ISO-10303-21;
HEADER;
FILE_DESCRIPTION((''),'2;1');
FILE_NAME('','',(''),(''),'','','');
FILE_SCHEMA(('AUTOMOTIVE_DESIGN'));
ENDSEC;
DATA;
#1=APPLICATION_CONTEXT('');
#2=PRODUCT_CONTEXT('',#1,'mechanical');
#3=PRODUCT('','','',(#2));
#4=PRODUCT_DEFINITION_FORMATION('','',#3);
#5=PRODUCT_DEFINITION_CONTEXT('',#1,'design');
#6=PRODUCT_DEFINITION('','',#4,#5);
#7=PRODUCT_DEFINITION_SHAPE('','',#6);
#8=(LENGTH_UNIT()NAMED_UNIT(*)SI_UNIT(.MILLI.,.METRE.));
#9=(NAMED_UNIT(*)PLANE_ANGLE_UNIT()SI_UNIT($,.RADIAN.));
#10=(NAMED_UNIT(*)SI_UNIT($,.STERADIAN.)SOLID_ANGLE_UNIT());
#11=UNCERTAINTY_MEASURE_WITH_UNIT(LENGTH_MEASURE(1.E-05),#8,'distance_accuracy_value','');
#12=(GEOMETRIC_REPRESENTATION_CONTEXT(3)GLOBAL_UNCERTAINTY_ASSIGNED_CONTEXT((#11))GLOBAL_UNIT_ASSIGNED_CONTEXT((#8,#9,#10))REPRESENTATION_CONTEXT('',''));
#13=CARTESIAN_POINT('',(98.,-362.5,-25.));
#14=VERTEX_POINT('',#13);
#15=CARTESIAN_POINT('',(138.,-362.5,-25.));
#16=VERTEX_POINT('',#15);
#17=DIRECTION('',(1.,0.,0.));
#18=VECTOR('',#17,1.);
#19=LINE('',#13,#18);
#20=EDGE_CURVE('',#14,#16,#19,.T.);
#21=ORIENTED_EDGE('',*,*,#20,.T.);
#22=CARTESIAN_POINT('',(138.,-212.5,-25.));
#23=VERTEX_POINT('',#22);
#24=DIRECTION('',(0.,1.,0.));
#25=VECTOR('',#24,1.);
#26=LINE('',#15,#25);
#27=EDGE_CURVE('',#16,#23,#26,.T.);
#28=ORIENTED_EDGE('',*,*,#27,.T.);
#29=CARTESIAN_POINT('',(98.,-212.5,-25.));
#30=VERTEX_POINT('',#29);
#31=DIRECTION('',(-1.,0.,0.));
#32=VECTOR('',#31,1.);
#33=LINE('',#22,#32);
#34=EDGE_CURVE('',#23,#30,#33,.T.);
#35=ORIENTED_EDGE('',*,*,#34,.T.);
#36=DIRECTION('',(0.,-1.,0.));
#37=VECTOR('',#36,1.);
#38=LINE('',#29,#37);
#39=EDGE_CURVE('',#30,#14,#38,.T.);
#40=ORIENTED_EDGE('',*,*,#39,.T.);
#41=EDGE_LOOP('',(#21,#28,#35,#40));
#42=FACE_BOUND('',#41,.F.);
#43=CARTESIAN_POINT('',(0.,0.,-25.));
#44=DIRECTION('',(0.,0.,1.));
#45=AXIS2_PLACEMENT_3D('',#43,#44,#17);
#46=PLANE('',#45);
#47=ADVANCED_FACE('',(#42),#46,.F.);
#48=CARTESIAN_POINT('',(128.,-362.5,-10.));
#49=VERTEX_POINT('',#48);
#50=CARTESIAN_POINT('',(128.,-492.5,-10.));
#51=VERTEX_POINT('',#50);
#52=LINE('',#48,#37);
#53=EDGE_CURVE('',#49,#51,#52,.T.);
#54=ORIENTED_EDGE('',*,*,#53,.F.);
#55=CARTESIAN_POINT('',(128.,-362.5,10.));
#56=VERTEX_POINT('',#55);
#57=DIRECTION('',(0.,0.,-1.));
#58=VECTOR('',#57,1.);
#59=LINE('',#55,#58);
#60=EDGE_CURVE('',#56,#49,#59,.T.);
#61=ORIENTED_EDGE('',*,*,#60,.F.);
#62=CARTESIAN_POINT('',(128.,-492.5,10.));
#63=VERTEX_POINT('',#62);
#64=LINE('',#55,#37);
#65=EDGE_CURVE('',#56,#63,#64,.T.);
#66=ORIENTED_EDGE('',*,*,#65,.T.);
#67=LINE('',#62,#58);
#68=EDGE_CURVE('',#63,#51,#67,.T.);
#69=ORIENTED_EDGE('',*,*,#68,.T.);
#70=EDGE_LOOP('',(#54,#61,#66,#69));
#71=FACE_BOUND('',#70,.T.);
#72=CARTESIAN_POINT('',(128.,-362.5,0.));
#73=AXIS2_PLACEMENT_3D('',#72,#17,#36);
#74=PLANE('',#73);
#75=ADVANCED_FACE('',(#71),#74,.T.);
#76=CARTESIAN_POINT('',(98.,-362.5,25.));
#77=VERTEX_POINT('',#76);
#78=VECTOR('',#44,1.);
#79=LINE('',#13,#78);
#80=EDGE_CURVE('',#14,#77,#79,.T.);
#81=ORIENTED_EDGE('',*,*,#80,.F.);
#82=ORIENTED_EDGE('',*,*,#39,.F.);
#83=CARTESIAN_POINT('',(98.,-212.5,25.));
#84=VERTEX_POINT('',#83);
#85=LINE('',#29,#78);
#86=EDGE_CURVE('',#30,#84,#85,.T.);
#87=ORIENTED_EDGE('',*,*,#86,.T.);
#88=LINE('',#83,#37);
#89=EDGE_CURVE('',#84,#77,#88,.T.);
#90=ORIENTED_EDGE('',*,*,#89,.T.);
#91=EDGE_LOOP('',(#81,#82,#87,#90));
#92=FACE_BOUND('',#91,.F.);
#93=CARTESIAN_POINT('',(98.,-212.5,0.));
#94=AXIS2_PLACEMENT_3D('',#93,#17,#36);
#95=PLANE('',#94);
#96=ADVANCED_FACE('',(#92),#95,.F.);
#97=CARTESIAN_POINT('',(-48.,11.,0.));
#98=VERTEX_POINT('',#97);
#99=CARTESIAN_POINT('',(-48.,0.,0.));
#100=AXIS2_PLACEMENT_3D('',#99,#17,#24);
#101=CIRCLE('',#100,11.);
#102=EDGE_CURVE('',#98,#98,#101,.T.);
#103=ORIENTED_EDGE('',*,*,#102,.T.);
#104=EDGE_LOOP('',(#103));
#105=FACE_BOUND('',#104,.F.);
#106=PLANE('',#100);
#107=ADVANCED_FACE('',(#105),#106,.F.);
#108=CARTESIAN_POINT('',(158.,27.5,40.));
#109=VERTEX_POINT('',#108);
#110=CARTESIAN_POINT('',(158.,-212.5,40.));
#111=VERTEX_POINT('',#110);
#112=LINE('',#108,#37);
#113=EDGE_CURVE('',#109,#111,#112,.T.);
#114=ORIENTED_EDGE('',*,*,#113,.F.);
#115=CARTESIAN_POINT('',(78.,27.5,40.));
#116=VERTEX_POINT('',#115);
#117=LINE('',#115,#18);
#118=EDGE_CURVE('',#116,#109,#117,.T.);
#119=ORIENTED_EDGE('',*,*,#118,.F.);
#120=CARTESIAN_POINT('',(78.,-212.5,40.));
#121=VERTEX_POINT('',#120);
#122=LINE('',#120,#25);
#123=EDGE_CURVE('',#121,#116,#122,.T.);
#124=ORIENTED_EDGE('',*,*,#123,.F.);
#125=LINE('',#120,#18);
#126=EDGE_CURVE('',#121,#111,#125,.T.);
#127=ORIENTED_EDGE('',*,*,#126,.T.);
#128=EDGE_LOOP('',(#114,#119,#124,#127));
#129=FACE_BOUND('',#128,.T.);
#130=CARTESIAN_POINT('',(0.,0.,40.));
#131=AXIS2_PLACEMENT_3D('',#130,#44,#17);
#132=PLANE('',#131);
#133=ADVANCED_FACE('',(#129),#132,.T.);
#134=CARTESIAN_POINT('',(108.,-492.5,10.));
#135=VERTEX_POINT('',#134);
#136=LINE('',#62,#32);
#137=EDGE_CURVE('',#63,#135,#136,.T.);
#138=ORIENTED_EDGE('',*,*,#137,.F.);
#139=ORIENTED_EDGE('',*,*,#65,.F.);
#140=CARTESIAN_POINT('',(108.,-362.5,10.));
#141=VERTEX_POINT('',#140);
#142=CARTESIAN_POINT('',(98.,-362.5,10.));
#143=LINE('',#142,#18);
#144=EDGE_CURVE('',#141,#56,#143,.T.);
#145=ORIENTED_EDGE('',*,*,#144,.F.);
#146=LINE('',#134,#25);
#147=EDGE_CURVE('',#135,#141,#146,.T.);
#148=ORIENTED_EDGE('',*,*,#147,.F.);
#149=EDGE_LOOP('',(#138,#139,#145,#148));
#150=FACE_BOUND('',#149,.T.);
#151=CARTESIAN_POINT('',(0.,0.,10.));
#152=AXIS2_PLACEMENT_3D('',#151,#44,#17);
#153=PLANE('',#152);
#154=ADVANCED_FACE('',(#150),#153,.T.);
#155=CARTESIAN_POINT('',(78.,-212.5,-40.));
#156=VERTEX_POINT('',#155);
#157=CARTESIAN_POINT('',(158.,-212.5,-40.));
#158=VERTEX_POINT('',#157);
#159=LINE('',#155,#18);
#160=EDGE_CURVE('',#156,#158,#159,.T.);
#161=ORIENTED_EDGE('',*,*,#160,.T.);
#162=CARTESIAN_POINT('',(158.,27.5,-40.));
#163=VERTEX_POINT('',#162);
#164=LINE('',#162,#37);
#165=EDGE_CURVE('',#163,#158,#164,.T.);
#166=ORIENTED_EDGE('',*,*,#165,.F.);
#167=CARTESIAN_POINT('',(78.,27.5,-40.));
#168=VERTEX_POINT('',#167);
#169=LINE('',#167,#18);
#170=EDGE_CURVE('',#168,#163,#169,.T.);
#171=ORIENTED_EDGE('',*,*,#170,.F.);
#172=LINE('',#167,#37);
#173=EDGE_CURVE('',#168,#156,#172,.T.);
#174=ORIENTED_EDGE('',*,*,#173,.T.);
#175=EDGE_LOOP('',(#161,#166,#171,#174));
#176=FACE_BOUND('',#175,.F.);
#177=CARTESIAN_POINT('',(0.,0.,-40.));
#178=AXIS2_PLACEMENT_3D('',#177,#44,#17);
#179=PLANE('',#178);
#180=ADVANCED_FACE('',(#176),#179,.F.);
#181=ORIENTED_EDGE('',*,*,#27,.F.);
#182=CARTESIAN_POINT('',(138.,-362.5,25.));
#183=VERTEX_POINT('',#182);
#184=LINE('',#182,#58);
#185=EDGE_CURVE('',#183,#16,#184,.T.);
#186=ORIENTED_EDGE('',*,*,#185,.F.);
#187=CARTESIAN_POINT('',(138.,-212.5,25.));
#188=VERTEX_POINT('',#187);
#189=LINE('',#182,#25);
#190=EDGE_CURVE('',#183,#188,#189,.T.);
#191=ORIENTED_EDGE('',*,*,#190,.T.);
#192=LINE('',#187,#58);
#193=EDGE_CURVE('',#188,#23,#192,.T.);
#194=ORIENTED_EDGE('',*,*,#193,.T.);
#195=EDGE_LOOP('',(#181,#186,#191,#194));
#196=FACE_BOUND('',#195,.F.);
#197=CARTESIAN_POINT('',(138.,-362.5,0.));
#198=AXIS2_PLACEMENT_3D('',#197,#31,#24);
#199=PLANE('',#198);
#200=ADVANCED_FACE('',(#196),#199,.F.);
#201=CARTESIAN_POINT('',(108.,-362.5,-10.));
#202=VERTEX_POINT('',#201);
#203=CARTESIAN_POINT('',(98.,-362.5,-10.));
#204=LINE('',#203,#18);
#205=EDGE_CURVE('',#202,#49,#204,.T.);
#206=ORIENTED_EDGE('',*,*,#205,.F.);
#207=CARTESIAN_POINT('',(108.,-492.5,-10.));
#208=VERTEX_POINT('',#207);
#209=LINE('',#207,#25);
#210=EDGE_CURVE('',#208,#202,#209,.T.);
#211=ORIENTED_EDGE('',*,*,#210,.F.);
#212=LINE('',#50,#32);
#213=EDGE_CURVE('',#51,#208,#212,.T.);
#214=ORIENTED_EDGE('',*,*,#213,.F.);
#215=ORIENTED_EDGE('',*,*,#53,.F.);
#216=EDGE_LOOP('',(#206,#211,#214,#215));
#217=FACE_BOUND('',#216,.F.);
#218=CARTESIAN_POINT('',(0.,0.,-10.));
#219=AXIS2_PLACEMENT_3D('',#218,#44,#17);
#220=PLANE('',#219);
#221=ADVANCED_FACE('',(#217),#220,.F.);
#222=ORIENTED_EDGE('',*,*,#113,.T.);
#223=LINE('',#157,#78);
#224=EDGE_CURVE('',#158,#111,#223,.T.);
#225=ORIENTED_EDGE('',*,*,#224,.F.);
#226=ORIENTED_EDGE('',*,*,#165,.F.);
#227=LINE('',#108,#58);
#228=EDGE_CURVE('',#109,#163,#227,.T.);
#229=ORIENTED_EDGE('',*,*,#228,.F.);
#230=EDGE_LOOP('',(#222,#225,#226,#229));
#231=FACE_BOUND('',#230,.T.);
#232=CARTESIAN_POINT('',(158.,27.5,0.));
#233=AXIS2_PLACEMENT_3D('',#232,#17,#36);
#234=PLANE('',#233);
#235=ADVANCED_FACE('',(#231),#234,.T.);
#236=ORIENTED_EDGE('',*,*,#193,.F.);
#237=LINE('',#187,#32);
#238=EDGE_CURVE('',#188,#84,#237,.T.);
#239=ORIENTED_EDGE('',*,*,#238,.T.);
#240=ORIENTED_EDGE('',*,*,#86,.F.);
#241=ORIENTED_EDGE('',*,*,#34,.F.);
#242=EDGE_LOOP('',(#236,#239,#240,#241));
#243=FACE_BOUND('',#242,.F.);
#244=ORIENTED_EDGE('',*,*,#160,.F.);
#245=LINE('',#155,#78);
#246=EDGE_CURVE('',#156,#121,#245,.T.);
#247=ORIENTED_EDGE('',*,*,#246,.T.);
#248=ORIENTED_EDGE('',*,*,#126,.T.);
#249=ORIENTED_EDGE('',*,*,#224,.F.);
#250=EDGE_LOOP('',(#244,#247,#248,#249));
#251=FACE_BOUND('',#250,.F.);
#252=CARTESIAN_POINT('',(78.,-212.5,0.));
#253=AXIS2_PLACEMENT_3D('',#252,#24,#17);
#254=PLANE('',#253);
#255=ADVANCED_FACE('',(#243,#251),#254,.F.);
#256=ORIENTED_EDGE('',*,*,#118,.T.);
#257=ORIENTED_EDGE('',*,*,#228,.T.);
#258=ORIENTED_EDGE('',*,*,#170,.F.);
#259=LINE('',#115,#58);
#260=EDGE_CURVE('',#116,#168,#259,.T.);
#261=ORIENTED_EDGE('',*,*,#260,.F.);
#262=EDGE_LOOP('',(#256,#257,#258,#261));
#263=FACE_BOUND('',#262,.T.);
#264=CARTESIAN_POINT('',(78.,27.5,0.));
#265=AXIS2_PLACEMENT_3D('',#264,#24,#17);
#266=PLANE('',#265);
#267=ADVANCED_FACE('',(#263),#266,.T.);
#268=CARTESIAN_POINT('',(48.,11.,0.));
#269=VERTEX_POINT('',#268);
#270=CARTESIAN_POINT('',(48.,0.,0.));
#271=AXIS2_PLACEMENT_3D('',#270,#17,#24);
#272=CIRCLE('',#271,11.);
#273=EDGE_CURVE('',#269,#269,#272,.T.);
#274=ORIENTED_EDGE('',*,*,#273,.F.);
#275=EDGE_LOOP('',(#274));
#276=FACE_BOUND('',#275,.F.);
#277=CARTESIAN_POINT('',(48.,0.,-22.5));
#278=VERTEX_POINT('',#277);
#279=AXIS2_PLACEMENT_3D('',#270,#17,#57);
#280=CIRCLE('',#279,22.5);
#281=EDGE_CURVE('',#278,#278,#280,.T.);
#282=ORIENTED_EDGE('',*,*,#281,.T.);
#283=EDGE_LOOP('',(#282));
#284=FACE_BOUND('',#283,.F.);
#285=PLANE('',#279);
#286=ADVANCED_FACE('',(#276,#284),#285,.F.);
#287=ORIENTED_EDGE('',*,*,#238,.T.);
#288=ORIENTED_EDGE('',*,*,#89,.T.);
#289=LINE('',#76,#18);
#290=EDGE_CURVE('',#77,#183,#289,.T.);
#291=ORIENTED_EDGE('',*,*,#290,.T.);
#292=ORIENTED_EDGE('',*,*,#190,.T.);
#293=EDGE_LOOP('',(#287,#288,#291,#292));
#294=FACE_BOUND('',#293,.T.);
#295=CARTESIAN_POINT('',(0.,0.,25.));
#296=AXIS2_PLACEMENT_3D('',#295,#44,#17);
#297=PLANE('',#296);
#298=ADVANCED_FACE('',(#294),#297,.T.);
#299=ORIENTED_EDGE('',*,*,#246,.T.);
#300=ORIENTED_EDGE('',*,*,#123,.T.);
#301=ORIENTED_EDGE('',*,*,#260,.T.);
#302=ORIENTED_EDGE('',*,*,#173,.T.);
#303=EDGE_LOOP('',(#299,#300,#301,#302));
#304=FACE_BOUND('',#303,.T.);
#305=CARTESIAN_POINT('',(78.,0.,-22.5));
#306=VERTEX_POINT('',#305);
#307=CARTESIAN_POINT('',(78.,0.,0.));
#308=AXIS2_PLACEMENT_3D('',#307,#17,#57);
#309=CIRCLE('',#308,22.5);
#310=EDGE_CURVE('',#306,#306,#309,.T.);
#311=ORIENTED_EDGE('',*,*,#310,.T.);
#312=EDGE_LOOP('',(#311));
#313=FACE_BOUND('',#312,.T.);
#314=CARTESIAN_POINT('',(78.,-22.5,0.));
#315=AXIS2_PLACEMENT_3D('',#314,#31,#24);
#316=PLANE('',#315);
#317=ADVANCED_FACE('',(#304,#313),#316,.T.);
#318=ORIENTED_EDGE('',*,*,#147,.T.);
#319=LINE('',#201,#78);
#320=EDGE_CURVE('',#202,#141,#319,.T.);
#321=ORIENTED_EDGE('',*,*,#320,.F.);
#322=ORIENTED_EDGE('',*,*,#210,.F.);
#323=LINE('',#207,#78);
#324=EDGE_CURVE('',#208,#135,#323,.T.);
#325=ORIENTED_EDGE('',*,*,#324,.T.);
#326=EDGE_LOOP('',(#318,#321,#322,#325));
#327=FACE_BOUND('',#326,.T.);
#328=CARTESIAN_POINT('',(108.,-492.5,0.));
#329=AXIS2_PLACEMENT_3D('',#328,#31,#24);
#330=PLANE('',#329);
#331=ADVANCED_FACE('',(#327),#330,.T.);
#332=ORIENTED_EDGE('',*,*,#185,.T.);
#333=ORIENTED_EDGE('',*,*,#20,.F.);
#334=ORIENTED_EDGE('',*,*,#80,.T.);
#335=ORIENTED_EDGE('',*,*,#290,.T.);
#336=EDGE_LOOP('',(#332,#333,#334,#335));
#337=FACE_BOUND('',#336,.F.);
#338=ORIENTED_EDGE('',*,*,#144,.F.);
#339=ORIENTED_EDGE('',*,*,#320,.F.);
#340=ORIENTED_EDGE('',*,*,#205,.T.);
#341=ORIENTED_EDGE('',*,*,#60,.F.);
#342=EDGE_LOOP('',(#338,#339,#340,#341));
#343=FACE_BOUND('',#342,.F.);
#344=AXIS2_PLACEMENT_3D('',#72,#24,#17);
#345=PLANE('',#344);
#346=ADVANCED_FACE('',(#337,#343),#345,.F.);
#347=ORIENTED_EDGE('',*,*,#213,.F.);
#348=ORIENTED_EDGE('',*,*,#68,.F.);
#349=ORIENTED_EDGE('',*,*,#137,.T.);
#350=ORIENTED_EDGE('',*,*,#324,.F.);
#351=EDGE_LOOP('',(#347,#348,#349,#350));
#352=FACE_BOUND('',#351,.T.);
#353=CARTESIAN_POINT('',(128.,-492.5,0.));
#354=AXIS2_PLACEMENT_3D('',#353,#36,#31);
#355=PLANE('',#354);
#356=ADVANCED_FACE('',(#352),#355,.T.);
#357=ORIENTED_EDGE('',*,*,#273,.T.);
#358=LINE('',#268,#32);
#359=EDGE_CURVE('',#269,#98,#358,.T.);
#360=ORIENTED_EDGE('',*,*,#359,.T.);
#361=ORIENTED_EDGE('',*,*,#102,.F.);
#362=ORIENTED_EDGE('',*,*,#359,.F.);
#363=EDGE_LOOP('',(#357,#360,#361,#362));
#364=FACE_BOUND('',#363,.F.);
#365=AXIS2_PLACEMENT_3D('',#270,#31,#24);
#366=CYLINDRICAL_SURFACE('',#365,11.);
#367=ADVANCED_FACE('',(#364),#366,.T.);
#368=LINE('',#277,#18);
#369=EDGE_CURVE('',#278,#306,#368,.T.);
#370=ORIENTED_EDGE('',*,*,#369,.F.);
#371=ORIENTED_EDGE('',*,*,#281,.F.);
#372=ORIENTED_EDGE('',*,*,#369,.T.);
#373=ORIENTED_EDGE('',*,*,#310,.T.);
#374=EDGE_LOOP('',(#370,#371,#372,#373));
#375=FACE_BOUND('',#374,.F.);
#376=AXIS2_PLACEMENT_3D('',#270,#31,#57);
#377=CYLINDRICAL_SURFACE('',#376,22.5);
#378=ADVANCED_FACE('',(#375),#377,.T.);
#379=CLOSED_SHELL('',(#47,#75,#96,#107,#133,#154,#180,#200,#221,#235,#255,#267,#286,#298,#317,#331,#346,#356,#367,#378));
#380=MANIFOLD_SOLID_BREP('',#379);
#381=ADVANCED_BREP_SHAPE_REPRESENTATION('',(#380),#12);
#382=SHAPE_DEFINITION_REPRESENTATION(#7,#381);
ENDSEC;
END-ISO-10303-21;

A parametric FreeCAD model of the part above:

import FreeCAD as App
import Part
import Sketcher


def add_polygon(sketch, points):
    """Adds a closed chain of lines whose ends are joined by coincident constraints."""
    first, n = sketch.GeometryCount, len(points)
    for a, b in zip(points, points[1:] + points[:1]):
        sketch.addGeometry(Part.LineSegment(App.Vector(*a, 0), App.Vector(*b, 0)), False)
    for i in range(n):
        sketch.addConstraint(Sketcher.Constraint("Coincident", first + i, 2, first + (i + 1) % n, 1))

doc = App.newDocument("Part")
body = doc.addObject("PartDesign::Body", "Body")

# Sketch on XY plane
sketch1 = body.newObject("Sketcher::SketchObject", "Sketch")
sketch1.AttachmentSupport = (doc.getObject("XY_Plane"), [""])
sketch1.MapMode = "FlatFace"
add_polygon(sketch1, [(-48, 11), (-48, 0), (48, 0), (48, 11)])  # lines 0-3
sketch1.addConstraint(Sketcher.Constraint("Vertical", 0))
sketch1.addConstraint(Sketcher.Constraint("Horizontal", 1))
sketch1.addConstraint(Sketcher.Constraint("Vertical", 2))
sketch1.addConstraint(Sketcher.Constraint("Horizontal", 3))
sketch1.addConstraint(Sketcher.Constraint("Symmetric", 0, 2, 1, 2, -1, 1))
sketch1.addConstraint(Sketcher.Constraint("DistanceX", 1, 1, 1, 2, 96.0))
sketch1.addConstraint(Sketcher.Constraint("DistanceY", 0, 2, 0, 1, 11.0))
revolution = body.newObject("PartDesign::Revolution", "Revolution")
revolution.Profile = sketch1
revolution.ReferenceAxis = (sketch1, ["H_Axis"])
revolution.Angle = 360

# Sketch on YZ plane
sketch2 = body.newObject("Sketcher::SketchObject", "Sketch001")
sketch2.AttachmentSupport = (doc.getObject("YZ_Plane"), [""])
sketch2.MapMode = "FlatFace"
sketch2.AttachmentOffset = App.Placement(App.Vector(0, 0, 48), App.Rotation())
sketch2.addGeometry(Part.Circle(App.Vector(0, 0, 0), App.Vector(0, 0, 1), 22), False)
sketch2.addConstraint(Sketcher.Constraint("Coincident", 0, 3, -1, 1))
sketch2.addConstraint(Sketcher.Constraint("Diameter", 0, 45.0))
pad1 = body.newObject("PartDesign::Pad", "Pad")
pad1.Profile = sketch2
pad1.Length = 30

# Sketch on XY plane
sketch3 = body.newObject("Sketcher::SketchObject", "Sketch002")
sketch3.AttachmentSupport = (doc.getObject("XY_Plane"), [""])
sketch3.MapMode = "FlatFace"
add_polygon(sketch3, [(78, 28), (78, -212), (158, -212), (158, 28)])  # lines 0-3
sketch3.addConstraint(Sketcher.Constraint("Vertical", 0))
sketch3.addConstraint(Sketcher.Constraint("Horizontal", 1))
sketch3.addConstraint(Sketcher.Constraint("Vertical", 2))
sketch3.addConstraint(Sketcher.Constraint("Horizontal", 3))
sketch3.addConstraint(Sketcher.Constraint("DistanceX", 1, 1, 1, 2, 80.0))
sketch3.addConstraint(Sketcher.Constraint("DistanceY", 0, 2, 0, 1, 240.0))
sketch3.addConstraint(Sketcher.Constraint("DistanceX", -1, 1, 0, 2, 78.0))
sketch3.addConstraint(Sketcher.Constraint("DistanceY", 0, 2, -1, 1, 212.5))
pad2 = body.newObject("PartDesign::Pad", "Pad001")
pad2.Profile = sketch3
pad2.Length = 80
pad2.Midplane = True

# Sketch on XY plane
sketch4 = body.newObject("Sketcher::SketchObject", "Sketch003")
sketch4.AttachmentSupport = (doc.getObject("XY_Plane"), [""])
sketch4.MapMode = "FlatFace"
add_polygon(sketch4, [(138, -212), (98, -212), (98, -362), (138, -362)])  # lines 0-3
sketch4.addConstraint(Sketcher.Constraint("Horizontal", 0))
sketch4.addConstraint(Sketcher.Constraint("Vertical", 1))
sketch4.addConstraint(Sketcher.Constraint("Horizontal", 2))
sketch4.addConstraint(Sketcher.Constraint("Vertical", 3))
sketch4.addConstraint(Sketcher.Constraint("DistanceX", 0, 2, 0, 1, 40.0))
sketch4.addConstraint(Sketcher.Constraint("DistanceY", 1, 2, 1, 1, 150.0))
sketch4.addConstraint(Sketcher.Constraint("DistanceX", -1, 1, 0, 2, 98.0))
sketch4.addConstraint(Sketcher.Constraint("DistanceY", 0, 2, -1, 1, 212.5))
pad3 = body.newObject("PartDesign::Pad", "Pad002")
pad3.Profile = sketch4
pad3.Length = 50
pad3.Midplane = True

# Sketch on XY plane
sketch5 = body.newObject("Sketcher::SketchObject", "Sketch004")
sketch5.AttachmentSupport = (doc.getObject("XY_Plane"), [""])
sketch5.MapMode = "FlatFace"
add_polygon(sketch5, [(128, -362), (108, -362), (108, -492), (128, -492)])  # lines 0-3
sketch5.addConstraint(Sketcher.Constraint("Horizontal", 0))
sketch5.addConstraint(Sketcher.Constraint("Vertical", 1))
sketch5.addConstraint(Sketcher.Constraint("Horizontal", 2))
sketch5.addConstraint(Sketcher.Constraint("Vertical", 3))
sketch5.addConstraint(Sketcher.Constraint("DistanceX", 0, 2, 0, 1, 20.0))
sketch5.addConstraint(Sketcher.Constraint("DistanceY", 1, 2, 1, 1, 130.0))
sketch5.addConstraint(Sketcher.Constraint("DistanceX", -1, 1, 0, 2, 108.0))
sketch5.addConstraint(Sketcher.Constraint("DistanceY", 0, 2, -1, 1, 362.5))
pad4 = body.newObject("PartDesign::Pad", "Pad003")
pad4.Profile = sketch5
pad4.Length = 20
pad4.Midplane = True

doc.recompute()
